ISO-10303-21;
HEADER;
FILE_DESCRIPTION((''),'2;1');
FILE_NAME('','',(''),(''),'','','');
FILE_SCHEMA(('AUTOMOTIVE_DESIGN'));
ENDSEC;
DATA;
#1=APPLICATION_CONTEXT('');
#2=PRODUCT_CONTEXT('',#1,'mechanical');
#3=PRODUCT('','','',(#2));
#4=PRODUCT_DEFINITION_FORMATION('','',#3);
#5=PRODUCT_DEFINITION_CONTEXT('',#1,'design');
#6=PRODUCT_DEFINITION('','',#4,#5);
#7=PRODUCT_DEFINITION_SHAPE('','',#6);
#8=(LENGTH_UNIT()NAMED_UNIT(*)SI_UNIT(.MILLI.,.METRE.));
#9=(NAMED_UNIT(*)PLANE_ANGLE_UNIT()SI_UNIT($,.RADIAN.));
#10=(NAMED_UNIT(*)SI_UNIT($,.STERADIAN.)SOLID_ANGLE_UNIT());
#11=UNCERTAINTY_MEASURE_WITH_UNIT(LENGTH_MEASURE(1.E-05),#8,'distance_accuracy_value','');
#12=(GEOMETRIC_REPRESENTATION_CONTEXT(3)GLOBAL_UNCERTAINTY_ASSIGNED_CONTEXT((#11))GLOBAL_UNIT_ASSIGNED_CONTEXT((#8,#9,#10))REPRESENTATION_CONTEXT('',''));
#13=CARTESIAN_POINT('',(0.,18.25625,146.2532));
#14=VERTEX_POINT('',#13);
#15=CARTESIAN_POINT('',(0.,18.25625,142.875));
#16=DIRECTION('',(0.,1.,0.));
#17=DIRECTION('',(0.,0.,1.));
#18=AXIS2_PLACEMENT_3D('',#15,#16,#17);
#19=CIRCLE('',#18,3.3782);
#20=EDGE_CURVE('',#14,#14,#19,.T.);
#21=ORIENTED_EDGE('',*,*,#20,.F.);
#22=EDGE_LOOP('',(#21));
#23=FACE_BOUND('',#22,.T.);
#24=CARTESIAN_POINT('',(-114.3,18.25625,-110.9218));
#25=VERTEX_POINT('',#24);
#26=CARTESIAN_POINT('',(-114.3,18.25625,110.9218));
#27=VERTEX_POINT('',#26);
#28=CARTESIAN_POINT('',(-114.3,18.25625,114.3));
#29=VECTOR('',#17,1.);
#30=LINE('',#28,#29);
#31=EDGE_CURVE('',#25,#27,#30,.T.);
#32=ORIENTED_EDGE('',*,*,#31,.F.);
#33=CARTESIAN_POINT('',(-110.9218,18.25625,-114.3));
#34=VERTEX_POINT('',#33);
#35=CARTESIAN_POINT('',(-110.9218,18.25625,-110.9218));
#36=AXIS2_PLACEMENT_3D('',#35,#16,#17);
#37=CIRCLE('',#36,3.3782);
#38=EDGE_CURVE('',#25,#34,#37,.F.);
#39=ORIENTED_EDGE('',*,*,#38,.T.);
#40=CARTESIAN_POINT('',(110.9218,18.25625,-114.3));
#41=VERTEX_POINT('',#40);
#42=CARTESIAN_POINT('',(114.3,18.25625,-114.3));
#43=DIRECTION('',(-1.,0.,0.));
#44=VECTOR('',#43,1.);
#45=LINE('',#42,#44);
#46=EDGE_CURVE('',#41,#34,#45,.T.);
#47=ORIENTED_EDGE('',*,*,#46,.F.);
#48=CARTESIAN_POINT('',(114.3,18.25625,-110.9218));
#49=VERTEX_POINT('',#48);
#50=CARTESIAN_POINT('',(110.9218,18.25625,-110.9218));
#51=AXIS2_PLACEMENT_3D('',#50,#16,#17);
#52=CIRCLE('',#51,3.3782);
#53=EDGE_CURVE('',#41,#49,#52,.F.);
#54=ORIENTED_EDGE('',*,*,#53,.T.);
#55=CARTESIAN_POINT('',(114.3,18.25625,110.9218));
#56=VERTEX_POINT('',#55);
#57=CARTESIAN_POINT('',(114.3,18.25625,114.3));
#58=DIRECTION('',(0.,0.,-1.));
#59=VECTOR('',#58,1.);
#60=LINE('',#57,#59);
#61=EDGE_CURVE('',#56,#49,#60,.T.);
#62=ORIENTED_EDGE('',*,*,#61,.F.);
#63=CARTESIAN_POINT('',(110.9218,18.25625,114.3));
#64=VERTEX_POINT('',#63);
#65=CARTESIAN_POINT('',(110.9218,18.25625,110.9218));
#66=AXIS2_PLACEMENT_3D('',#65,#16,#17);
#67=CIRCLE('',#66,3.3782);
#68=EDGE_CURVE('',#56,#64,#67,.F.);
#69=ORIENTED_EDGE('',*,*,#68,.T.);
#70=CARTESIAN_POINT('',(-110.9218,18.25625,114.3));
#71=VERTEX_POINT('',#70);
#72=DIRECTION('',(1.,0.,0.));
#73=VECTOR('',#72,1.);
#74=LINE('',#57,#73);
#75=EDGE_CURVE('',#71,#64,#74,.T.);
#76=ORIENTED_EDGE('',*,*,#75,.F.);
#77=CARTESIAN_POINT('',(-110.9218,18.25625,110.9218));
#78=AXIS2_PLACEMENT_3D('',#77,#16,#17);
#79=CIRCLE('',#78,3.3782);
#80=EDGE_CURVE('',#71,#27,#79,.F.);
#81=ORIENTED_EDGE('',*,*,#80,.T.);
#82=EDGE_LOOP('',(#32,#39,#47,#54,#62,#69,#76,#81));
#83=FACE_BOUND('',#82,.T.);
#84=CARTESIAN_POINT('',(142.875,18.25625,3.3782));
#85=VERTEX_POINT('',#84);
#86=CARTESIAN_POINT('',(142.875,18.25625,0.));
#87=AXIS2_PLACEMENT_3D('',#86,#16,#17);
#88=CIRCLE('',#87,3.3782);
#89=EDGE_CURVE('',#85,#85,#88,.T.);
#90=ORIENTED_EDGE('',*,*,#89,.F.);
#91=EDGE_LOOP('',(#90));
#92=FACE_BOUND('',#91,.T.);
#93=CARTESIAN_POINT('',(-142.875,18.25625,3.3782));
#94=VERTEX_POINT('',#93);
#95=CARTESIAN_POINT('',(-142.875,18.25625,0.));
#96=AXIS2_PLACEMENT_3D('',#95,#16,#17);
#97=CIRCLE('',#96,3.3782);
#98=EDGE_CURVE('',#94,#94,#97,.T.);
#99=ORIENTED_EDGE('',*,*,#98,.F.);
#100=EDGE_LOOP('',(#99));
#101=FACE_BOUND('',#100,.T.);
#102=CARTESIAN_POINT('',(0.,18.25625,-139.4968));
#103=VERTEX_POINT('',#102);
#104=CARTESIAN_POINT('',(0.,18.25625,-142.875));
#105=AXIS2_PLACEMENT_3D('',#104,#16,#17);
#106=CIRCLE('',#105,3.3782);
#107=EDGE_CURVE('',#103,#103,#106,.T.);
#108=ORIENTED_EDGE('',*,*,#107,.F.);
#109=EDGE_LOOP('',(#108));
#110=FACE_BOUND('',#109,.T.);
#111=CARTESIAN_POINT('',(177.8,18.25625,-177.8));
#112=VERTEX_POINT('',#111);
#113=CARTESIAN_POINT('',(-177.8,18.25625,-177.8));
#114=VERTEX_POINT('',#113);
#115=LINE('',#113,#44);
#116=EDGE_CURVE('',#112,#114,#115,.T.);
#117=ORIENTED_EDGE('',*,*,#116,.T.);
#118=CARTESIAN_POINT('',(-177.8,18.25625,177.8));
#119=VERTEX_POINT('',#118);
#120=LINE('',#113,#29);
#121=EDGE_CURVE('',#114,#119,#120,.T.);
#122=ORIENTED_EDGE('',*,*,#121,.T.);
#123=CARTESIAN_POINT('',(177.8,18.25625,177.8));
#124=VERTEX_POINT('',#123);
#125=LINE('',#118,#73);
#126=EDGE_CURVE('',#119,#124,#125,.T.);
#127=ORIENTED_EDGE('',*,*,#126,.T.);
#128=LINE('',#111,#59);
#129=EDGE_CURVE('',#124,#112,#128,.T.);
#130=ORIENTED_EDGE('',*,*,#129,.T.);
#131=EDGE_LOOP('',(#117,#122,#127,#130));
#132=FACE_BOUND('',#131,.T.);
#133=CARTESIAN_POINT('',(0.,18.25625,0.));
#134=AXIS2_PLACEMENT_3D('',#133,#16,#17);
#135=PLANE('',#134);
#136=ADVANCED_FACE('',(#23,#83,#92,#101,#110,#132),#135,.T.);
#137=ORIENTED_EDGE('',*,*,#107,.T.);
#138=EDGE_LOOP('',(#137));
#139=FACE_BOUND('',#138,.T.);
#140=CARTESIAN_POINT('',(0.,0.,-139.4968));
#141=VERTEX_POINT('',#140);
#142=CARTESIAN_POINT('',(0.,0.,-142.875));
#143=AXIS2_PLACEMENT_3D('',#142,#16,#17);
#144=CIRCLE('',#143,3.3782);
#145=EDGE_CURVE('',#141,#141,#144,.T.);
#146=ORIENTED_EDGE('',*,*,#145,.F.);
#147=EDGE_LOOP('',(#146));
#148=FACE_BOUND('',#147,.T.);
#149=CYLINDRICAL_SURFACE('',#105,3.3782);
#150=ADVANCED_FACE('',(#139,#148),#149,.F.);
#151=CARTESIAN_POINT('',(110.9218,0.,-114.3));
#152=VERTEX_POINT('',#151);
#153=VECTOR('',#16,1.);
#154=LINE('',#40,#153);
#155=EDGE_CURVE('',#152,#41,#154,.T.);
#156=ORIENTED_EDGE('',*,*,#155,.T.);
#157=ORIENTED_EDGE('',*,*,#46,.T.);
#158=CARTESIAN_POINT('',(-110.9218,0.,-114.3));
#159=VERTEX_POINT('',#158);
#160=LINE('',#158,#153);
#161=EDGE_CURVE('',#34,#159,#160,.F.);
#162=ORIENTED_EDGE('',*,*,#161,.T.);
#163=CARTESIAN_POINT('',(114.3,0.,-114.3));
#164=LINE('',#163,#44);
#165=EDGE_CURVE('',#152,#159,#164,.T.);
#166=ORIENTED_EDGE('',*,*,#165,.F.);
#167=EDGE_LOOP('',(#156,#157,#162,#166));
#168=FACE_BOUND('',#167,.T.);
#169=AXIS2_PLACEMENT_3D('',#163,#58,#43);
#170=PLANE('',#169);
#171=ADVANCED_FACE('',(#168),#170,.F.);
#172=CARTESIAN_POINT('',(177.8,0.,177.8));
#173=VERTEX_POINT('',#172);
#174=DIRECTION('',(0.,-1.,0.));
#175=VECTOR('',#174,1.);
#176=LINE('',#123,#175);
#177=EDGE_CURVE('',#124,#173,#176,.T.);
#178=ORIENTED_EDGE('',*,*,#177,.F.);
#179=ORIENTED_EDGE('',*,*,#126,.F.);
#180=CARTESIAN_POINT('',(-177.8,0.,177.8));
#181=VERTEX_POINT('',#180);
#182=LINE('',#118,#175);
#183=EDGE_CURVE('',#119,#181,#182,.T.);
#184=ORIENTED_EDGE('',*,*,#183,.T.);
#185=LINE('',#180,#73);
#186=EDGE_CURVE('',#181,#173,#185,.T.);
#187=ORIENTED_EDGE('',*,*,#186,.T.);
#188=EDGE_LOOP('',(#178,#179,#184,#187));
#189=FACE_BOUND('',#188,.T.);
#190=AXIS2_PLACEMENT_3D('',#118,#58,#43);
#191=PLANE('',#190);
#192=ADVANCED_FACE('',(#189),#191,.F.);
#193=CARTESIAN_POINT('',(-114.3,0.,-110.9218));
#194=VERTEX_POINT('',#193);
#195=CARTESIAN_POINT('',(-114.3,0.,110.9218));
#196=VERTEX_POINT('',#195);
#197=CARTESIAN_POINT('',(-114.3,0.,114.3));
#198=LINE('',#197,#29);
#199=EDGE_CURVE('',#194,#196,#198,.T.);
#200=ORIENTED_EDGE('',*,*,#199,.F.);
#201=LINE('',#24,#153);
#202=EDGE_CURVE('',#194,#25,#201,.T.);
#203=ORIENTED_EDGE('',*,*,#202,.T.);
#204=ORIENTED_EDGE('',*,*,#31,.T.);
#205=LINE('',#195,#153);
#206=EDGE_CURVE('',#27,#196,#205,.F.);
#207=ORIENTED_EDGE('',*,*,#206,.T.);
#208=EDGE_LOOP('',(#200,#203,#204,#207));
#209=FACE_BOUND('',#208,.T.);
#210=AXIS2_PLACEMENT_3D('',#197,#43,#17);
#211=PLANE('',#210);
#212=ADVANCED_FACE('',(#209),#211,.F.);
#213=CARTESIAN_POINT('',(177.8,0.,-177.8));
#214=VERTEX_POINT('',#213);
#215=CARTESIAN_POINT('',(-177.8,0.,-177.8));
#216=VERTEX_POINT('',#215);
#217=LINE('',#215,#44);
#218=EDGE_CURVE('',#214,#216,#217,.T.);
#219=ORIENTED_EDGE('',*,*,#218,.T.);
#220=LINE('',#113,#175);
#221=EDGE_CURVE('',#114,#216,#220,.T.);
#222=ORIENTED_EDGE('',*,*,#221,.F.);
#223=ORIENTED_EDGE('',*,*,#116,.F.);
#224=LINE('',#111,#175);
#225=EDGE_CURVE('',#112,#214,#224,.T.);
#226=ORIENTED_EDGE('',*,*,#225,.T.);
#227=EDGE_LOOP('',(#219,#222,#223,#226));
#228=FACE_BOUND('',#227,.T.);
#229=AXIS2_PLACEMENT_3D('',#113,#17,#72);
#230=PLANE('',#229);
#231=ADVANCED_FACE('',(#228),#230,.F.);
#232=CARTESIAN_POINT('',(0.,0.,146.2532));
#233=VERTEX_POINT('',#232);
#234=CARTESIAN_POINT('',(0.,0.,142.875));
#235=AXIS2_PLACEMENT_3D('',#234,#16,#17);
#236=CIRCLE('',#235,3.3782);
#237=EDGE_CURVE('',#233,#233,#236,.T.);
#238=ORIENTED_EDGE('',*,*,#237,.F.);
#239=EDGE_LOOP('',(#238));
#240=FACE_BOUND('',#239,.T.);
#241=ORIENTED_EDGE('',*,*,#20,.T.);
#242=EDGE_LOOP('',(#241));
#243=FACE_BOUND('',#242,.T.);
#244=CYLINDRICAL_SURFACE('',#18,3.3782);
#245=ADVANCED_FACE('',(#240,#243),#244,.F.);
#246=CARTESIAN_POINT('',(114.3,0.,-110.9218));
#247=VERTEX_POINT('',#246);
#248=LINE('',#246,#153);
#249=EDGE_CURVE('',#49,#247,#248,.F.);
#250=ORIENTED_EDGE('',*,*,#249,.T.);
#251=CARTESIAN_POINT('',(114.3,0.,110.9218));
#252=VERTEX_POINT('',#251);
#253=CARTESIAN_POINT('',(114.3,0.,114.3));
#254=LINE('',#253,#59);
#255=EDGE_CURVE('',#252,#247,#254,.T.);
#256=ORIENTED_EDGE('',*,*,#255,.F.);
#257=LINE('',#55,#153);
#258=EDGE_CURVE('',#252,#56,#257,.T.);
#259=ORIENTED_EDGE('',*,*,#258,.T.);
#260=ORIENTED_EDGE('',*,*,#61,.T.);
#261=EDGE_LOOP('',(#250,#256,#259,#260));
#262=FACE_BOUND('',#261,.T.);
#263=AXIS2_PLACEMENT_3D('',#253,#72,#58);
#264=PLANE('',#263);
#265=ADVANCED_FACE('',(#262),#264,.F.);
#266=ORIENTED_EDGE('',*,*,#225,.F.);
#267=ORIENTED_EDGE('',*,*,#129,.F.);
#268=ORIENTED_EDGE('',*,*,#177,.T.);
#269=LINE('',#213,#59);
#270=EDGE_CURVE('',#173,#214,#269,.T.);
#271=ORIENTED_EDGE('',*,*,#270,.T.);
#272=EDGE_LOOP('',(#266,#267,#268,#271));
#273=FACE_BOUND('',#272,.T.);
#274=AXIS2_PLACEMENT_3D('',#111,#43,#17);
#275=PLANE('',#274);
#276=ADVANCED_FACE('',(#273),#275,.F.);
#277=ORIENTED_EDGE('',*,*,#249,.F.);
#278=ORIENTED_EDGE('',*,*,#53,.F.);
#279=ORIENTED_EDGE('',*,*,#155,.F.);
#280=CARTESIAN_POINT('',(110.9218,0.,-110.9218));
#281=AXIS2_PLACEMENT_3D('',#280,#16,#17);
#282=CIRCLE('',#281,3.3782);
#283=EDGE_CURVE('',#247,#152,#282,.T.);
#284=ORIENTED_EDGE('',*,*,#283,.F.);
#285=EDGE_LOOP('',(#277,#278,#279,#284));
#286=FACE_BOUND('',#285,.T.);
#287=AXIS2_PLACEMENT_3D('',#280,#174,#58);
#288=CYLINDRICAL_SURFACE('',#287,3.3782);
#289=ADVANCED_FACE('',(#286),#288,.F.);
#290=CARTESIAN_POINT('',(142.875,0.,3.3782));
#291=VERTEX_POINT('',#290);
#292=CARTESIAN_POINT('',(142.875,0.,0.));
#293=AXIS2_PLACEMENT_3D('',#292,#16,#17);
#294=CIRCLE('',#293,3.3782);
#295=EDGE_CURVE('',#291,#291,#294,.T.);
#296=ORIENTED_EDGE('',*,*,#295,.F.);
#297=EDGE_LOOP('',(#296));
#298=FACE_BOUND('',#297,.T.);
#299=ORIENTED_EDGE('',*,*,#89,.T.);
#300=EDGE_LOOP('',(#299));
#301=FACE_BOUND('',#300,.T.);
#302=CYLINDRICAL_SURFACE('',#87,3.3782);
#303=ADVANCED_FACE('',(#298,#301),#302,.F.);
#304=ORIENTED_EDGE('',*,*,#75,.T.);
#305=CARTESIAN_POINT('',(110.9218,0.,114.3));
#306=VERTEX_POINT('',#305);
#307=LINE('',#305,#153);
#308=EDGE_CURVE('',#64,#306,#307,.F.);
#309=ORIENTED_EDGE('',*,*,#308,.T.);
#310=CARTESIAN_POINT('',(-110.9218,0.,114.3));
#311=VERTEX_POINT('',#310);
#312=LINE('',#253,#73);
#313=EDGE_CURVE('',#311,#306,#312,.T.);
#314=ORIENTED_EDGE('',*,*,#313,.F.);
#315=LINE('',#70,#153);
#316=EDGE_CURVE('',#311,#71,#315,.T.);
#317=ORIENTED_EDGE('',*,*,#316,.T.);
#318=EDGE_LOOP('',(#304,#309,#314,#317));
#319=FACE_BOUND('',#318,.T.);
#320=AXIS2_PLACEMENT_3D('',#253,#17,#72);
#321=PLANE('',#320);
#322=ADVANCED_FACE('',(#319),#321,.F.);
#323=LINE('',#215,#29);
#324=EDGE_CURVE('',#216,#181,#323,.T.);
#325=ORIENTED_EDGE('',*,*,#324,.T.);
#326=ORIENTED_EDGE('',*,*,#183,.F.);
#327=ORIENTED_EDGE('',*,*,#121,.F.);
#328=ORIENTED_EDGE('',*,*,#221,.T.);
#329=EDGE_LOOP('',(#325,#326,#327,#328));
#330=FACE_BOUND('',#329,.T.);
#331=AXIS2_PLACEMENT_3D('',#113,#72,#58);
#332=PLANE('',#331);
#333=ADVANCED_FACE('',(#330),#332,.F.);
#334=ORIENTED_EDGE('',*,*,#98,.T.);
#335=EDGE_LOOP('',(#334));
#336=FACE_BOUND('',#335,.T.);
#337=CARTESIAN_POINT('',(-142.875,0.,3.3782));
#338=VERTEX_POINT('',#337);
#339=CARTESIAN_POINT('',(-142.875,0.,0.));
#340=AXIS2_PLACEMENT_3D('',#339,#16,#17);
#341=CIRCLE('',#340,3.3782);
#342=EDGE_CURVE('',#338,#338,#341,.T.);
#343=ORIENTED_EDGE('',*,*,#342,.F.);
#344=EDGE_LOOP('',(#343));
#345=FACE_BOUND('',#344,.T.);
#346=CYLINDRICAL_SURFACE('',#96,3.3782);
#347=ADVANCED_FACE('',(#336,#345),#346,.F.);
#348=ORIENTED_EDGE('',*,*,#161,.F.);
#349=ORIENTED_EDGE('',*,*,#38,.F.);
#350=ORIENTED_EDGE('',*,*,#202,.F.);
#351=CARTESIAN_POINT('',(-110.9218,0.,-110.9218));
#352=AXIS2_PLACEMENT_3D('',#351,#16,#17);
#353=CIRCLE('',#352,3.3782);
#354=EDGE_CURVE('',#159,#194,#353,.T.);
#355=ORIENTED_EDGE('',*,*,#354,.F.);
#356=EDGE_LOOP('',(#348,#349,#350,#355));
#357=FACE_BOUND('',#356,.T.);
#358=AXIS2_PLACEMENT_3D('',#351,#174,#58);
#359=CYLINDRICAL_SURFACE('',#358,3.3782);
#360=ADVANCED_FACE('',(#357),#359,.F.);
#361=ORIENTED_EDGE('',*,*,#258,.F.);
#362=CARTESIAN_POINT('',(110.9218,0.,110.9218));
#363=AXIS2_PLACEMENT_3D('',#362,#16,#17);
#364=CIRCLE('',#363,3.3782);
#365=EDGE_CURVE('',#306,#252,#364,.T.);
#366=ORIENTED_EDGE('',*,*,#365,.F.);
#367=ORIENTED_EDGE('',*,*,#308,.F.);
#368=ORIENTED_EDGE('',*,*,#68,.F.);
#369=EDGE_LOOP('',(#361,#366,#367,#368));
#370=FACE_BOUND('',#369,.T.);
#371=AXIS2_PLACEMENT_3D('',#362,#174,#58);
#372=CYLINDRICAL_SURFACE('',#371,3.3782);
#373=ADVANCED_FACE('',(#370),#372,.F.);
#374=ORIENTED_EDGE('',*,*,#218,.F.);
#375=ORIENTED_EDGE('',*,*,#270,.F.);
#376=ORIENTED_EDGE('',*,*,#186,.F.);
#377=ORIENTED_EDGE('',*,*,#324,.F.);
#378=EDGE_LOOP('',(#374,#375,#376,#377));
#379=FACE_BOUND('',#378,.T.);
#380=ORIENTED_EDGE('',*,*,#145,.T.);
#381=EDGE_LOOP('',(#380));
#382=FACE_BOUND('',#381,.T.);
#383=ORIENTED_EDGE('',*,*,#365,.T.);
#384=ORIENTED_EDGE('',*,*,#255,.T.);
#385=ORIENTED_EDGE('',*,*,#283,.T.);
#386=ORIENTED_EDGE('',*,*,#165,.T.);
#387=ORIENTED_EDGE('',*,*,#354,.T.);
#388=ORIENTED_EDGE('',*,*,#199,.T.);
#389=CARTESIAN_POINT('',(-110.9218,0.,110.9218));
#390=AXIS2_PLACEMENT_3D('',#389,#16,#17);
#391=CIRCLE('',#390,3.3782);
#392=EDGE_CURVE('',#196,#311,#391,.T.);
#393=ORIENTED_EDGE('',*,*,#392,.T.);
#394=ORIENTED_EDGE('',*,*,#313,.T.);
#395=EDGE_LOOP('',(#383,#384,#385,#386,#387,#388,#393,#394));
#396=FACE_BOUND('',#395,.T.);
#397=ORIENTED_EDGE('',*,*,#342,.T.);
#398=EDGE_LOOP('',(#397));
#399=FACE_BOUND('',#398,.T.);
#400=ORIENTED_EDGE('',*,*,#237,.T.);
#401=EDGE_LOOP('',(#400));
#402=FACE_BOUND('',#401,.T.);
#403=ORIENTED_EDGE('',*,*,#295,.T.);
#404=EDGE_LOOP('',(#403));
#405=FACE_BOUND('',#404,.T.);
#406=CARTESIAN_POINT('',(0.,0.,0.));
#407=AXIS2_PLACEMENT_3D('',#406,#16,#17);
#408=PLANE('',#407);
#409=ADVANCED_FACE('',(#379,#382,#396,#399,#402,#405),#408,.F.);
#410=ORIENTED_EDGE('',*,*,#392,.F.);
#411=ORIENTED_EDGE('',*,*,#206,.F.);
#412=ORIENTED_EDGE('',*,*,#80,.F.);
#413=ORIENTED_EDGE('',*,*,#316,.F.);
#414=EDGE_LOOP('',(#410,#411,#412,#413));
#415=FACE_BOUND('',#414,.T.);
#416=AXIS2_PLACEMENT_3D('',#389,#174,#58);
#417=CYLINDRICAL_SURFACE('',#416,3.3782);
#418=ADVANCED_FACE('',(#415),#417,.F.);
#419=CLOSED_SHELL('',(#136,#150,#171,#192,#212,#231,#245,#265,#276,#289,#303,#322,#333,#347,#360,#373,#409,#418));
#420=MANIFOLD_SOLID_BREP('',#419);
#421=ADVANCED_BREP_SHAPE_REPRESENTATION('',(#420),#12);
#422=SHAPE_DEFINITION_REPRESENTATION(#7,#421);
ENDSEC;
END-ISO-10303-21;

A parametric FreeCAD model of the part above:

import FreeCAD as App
import Part
import Sketcher
Q = App.Units.Quantity


def edges_at(feature, points):
    """Names of the edges that pass closest to the given points."""
    edges = feature.Shape.Edges
    near = lambda p: min(range(len(edges)), key=lambda i: edges[i].distToShape(Part.Vertex(*p))[0])
    return sorted({f"Edge{near(p) + 1}" for p in points})

doc = App.newDocument("Part")
params = doc.addObject("Spreadsheet::Sheet", "Params")
for row, (alias, value) in enumerate([
    ("sketch1_width", "14 in"),
    ("pad1_length", "0.71875 in"),
    ("sketch2_diameter", "0.266 in"),
    ("hole_diameter", "0.266 in"),
    ("sketch3_width", "9 in"),
    ("fillet_radius", "0.133 in"),
], start=1):
    params.set(f"A{row}", alias)
    params.set(f"B{row}", "=" + value)
    params.setAlias(f"B{row}", alias)

body = doc.addObject("PartDesign::Body", "Body")

sketch1 = body.newObject("Sketcher::SketchObject", "Sketch")
sketch1.AttachmentSupport = (doc.getObject("XZ_Plane"), [""])
sketch1.MapMode = "FlatFace"
sketch1.addGeometry(Part.LineSegment(App.Vector(-178, -178, 0), App.Vector(-178, 178, 0)), False)
sketch1.addGeometry(Part.LineSegment(App.Vector(-178, 178, 0), App.Vector(178, 178, 0)), False)
sketch1.addGeometry(Part.LineSegment(App.Vector(178, 178, 0), App.Vector(178, -178, 0)), False)
sketch1.addGeometry(Part.LineSegment(App.Vector(178, -178, 0), App.Vector(-178, -178, 0)), False)
sketch1.addConstraint(Sketcher.Constraint("Coincident", 0, 2, 1, 1))
sketch1.addConstraint(Sketcher.Constraint("Coincident", 1, 2, 2, 1))
sketch1.addConstraint(Sketcher.Constraint("Coincident", 2, 2, 3, 1))
sketch1.addConstraint(Sketcher.Constraint("Coincident", 3, 2, 0, 1))
sketch1.addConstraint(Sketcher.Constraint("Vertical", 0))
sketch1.addConstraint(Sketcher.Constraint("Horizontal", 1))
sketch1.addConstraint(Sketcher.Constraint("Vertical", 2))
sketch1.addConstraint(Sketcher.Constraint("Horizontal", 3))
sketch1.addConstraint(Sketcher.Constraint("Symmetric", 0, 2, 2, 2, -1, 1))
sketch1.addConstraint(Sketcher.Constraint("Equal", 3, 0))
sketch1.addConstraint(Sketcher.Constraint("DistanceX", 1, 1, 1, 2, Q("14 in")))
sketch1.setExpression("Constraints[10]", "Params.sketch1_width")
pad1 = body.newObject("PartDesign::Pad", "Pad")
pad1.Profile = sketch1
pad1.setExpression("Length", "Params.pad1_length")
pad1.Reversed = True

sketch2 = body.newObject("Sketcher::SketchObject", "Sketch001")
sketch2.AttachmentSupport = (doc.getObject("XZ_Plane"), [""])
sketch2.MapMode = "FlatFace"
sketch2.AttachmentOffset = App.Placement(App.Vector(0, 0, -0.71875 * 25.4), App.Rotation())
sketch2.addGeometry(Part.Circle(App.Vector(0, -142.9, 0), App.Vector(0, 0, 1), 3.4), False)
sketch2.addGeometry(Part.Circle(App.Vector(-142.9, 0, 0), App.Vector(0, 0, 1), 3.4), False)
sketch2.addGeometry(Part.Circle(App.Vector(0, 142.9, 0), App.Vector(0, 0, 1), 3.4), False)
sketch2.addGeometry(Part.Circle(App.Vector(142.9, 0, 0), App.Vector(0, 0, 1), 3.4), False)
sketch2.addConstraint(Sketcher.Constraint("Equal", 0, 1))
sketch2.addConstraint(Sketcher.Constraint("Equal", 1, 2))
sketch2.addConstraint(Sketcher.Constraint("Equal", 2, 3))
sketch2.addConstraint(Sketcher.Constraint("Symmetric", 0, 3, 2, 3, -1, 1))
sketch2.addConstraint(Sketcher.Constraint("Symmetric", 1, 3, 3, 3, -1, 1))
sketch2.addConstraint(Sketcher.Constraint("PointOnObject", 0, 3, -2))
sketch2.addConstraint(Sketcher.Constraint("PointOnObject", 1, 3, -1))
sketch2.addConstraint(Sketcher.Constraint("Diameter", 0, Q("0.266 in")))
sketch2.addConstraint(Sketcher.Constraint("DistanceY", 0, 3, 2, 3, Q("11.25 in")))
sketch2.addConstraint(Sketcher.Constraint("DistanceX", 1, 3, 3, 3, Q("11.25 in")))
sketch2.setExpression("Constraints[7]", "Params.sketch2_diameter")
doc.recompute()
hole = body.newObject("PartDesign::Hole", "Hole")
hole.Profile = sketch2
hole.ThreadType = "None"
hole.setExpression("Diameter", "Params.hole_diameter")
hole.DepthType = "ThroughAll"
hole.Reversed = True

sketch3 = body.newObject("Sketcher::SketchObject", "Sketch002")
sketch3.AttachmentSupport = (doc.getObject("XZ_Plane"), [""])
sketch3.MapMode = "FlatFace"
sketch3.AttachmentOffset = App.Placement(App.Vector(0, 0, -0.71875 * 25.4), App.Rotation())
sketch3.addGeometry(Part.LineSegment(App.Vector(-114, -114, 0), App.Vector(-114, 114, 0)), False)
sketch3.addGeometry(Part.LineSegment(App.Vector(-114, 114, 0), App.Vector(114, 114, 0)), False)
sketch3.addGeometry(Part.LineSegment(App.Vector(114, 114, 0), App.Vector(114, -114, 0)), False)
sketch3.addGeometry(Part.LineSegment(App.Vector(114, -114, 0), App.Vector(-114, -114, 0)), False)
sketch3.addConstraint(Sketcher.Constraint("Coincident", 0, 2, 1, 1))
sketch3.addConstraint(Sketcher.Constraint("Coincident", 1, 2, 2, 1))
sketch3.addConstraint(Sketcher.Constraint("Coincident", 2, 2, 3, 1))
sketch3.addConstraint(Sketcher.Constraint("Coincident", 3, 2, 0, 1))
sketch3.addConstraint(Sketcher.Constraint("Vertical", 0))
sketch3.addConstraint(Sketcher.Constraint("Horizontal", 1))
sketch3.addConstraint(Sketcher.Constraint("Vertical", 2))
sketch3.addConstraint(Sketcher.Constraint("Horizontal", 3))
sketch3.addConstraint(Sketcher.Constraint("Symmetric", 0, 2, 2, 2, -1, 1))
sketch3.addConstraint(Sketcher.Constraint("Equal", 3, 0))
sketch3.addConstraint(Sketcher.Constraint("DistanceX", 1, 1, 1, 2, Q("9 in")))
sketch3.setExpression("Constraints[10]", "Params.sketch3_width")
pocket1 = body.newObject("PartDesign::Pocket", "Pocket")
pocket1.Profile = sketch3
pocket1.Type = "ThroughAll"
pocket1.Reversed = True
doc.recompute()

fillet = body.newObject("PartDesign::Fillet", "Fillet")
fillet.Base = (pocket1, edges_at(pocket1, [
    (-114.3, 9.128, 114.3),
    (-114.3, 9.128, -114.3),
    (114.3, 9.128, -114.3),
    (114.3, 9.128, 114.3),
]))
fillet.setExpression("Radius", "Params.fillet_radius")

doc.recompute()
